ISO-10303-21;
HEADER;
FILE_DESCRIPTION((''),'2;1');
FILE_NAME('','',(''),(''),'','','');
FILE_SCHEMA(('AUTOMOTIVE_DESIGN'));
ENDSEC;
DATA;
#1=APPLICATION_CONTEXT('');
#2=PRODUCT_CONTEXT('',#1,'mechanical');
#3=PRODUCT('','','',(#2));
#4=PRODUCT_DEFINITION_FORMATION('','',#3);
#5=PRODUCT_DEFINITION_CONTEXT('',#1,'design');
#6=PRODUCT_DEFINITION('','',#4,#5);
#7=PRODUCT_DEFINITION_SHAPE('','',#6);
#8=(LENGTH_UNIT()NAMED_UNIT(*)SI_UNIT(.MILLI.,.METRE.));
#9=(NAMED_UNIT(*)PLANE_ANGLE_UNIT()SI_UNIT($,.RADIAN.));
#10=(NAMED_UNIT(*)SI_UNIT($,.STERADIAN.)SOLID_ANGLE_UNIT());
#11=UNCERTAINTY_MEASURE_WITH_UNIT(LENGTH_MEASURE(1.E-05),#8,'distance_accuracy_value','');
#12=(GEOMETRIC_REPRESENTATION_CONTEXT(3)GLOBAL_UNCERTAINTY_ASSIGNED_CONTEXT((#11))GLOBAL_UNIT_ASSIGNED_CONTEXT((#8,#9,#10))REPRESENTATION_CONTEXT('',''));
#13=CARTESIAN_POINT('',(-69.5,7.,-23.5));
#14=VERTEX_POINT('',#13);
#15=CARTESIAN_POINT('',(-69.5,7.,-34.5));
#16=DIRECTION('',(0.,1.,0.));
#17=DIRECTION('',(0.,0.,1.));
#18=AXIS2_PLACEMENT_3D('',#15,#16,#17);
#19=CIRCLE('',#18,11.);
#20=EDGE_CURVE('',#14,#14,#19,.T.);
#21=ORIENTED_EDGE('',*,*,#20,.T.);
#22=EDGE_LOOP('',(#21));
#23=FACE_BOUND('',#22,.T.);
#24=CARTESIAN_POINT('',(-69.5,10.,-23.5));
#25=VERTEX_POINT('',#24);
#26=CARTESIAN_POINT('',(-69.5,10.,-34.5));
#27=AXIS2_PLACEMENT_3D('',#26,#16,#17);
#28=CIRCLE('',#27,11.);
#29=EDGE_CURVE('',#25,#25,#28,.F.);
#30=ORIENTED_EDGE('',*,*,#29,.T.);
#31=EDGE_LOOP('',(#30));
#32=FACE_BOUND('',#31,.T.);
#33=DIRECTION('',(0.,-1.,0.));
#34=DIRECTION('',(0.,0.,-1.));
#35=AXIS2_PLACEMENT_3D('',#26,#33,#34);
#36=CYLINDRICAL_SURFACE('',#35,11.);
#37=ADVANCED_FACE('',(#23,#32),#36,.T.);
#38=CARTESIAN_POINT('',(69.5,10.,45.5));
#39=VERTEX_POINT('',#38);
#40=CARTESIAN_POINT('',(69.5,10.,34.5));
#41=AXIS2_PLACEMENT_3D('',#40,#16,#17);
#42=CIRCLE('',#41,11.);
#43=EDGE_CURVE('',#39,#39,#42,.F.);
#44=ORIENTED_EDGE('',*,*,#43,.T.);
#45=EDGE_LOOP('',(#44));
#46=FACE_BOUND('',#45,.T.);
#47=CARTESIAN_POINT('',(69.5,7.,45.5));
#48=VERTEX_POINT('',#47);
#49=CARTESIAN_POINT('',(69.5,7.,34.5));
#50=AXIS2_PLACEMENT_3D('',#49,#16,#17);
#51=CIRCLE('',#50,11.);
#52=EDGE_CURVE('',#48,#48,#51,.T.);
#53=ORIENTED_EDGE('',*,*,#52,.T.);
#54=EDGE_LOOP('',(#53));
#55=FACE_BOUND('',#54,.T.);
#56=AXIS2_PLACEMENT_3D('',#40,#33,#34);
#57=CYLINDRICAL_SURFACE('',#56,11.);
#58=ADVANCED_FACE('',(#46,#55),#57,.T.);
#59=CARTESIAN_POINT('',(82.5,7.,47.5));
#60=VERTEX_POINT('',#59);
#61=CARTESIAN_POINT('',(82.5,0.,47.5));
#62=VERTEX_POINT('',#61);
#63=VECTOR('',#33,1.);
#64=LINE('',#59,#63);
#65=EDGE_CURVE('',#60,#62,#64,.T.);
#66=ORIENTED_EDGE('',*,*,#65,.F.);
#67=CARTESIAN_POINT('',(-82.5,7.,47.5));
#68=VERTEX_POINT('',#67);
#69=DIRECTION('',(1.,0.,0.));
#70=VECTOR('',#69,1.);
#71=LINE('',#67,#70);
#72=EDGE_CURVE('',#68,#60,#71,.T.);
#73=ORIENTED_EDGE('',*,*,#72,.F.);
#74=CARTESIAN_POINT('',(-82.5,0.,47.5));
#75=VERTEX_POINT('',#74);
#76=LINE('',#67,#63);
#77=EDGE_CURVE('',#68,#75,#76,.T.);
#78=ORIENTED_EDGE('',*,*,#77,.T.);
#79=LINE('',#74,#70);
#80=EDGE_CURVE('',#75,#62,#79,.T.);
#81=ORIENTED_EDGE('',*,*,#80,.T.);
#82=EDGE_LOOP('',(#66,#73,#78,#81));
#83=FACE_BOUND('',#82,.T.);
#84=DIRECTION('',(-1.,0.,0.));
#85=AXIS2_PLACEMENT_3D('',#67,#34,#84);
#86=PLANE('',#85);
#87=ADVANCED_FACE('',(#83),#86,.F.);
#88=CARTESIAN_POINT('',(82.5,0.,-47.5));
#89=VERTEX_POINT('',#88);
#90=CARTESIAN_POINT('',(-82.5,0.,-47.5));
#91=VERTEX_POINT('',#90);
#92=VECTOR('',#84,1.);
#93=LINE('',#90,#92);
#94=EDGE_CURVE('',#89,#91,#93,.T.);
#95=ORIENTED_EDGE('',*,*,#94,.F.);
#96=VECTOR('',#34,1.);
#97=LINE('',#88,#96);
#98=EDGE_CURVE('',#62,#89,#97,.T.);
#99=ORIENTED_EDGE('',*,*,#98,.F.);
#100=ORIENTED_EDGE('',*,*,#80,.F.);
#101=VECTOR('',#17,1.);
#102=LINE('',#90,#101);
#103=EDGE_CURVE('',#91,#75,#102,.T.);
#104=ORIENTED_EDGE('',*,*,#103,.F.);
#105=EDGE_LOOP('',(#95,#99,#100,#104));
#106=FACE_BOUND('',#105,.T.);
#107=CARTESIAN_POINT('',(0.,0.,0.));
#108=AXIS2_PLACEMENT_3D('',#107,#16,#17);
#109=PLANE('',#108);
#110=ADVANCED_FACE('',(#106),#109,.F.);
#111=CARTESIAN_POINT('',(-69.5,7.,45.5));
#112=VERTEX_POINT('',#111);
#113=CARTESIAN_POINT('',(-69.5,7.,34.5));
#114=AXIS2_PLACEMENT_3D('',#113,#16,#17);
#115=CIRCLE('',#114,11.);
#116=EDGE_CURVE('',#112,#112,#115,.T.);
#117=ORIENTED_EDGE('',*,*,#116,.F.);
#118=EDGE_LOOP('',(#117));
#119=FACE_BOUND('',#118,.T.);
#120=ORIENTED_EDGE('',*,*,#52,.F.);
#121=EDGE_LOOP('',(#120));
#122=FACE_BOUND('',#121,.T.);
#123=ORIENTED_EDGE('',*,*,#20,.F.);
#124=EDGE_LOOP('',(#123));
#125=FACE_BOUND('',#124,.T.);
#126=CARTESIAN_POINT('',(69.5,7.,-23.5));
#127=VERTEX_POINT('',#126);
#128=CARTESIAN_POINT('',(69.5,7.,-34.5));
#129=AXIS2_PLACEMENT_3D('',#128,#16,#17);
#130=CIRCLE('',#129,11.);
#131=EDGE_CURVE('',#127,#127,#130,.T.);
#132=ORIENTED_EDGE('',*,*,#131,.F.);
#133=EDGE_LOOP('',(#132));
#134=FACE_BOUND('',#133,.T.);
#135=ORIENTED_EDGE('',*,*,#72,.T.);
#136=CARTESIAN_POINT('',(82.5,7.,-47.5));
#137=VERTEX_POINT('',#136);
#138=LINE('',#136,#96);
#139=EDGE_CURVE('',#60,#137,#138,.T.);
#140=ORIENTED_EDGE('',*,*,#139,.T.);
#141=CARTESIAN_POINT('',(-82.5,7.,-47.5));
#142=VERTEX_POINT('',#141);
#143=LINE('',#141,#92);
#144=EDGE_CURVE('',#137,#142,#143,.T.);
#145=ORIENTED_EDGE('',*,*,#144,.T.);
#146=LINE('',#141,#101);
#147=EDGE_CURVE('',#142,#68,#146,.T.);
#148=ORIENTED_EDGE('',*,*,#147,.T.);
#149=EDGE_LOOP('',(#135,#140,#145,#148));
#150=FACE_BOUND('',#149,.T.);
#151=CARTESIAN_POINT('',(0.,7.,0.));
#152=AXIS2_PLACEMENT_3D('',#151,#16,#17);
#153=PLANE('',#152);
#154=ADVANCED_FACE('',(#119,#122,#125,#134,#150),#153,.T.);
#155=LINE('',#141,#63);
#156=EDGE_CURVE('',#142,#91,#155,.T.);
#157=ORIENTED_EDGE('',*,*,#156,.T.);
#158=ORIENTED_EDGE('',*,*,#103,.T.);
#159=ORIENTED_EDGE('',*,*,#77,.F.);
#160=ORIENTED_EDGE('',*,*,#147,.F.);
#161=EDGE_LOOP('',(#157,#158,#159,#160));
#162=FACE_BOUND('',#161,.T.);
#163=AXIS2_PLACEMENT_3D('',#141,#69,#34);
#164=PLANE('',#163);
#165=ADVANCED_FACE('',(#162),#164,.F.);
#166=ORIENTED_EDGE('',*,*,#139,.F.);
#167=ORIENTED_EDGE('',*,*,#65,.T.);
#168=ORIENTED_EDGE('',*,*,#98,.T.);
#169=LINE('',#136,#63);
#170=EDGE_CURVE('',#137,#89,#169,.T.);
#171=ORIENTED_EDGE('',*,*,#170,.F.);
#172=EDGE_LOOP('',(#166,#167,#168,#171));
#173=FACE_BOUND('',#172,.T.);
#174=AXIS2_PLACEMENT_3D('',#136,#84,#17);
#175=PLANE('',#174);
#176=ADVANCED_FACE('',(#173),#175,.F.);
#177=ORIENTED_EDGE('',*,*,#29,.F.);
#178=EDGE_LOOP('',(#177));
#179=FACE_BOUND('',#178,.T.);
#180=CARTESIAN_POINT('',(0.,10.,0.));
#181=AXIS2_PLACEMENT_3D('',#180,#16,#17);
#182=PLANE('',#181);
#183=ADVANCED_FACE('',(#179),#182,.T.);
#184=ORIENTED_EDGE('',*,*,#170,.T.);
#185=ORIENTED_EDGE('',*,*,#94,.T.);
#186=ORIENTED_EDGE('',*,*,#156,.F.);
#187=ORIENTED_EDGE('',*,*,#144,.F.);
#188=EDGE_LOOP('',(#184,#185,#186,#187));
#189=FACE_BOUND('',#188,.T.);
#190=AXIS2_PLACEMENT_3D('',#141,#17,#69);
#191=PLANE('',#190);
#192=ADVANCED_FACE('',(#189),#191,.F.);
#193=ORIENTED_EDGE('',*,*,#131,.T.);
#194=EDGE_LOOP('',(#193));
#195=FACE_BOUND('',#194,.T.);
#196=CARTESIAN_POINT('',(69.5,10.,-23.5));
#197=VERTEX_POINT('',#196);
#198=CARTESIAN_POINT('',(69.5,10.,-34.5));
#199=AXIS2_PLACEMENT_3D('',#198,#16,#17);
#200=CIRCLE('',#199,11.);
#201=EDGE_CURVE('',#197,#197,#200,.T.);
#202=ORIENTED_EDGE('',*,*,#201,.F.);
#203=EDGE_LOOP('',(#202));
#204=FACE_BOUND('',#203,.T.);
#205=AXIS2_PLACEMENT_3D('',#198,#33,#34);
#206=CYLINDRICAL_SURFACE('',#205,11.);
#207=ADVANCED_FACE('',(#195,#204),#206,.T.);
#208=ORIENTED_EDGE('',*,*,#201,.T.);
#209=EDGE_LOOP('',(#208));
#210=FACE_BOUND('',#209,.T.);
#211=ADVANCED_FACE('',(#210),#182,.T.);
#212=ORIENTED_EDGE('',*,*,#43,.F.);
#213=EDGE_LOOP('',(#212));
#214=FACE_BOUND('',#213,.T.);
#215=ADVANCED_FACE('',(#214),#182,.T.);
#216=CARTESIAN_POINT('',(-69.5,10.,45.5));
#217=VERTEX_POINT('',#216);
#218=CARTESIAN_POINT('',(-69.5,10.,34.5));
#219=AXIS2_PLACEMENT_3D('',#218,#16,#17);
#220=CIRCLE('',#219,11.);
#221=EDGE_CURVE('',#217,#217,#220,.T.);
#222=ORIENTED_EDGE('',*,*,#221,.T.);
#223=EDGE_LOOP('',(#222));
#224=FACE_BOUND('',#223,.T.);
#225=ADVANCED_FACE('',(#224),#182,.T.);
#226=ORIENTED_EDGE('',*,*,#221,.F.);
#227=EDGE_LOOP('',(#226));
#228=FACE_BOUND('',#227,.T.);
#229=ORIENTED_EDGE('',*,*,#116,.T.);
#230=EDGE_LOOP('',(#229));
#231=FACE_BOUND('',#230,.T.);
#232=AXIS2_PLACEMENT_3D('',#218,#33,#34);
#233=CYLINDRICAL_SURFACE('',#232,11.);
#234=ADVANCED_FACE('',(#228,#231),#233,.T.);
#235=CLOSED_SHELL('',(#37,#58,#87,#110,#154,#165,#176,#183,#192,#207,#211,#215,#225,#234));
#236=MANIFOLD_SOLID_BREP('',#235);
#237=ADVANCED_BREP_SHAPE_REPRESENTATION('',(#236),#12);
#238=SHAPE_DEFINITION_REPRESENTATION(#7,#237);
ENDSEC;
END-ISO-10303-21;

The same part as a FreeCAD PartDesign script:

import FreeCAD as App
import Part
import Sketcher

V = App.Vector


def add_polygon(sketch, points):
    """Adds a closed chain of lines whose ends are joined by coincident constraints."""
    first, n = sketch.GeometryCount, len(points)
    for a, b in zip(points, points[1:] + points[:1]):
        sketch.addGeometry(Part.LineSegment(App.Vector(*a, 0), App.Vector(*b, 0)), False)
    for i in range(n):
        sketch.addConstraint(Sketcher.Constraint("Coincident", first + i, 2, first + (i + 1) % n, 1))

doc = App.newDocument("Part")
body = doc.addObject("PartDesign::Body", "Body")

# Sketch on XZ plane
sketch1 = body.newObject("Sketcher::SketchObject", "Sketch")
sketch1.AttachmentSupport = (doc.getObject("XZ_Plane"), [""])
sketch1.MapMode = "FlatFace"
add_polygon(sketch1, [(-82.5, -47.5), (-82.5, 47.5), (82.5, 47.5), (82.5, -47.5)])  # lines 0-3
sketch1.addConstraint(Sketcher.Constraint("Vertical", 0))
sketch1.addConstraint(Sketcher.Constraint("Horizontal", 1))
sketch1.addConstraint(Sketcher.Constraint("Vertical", 2))
sketch1.addConstraint(Sketcher.Constraint("Horizontal", 3))
sketch1.addConstraint(Sketcher.Constraint("Symmetric", 0, 2, 2, 2, -1, 1))
sketch1.addConstraint(Sketcher.Constraint("DistanceX", 1, 1, 1, 2, 165.0))
sketch1.addConstraint(Sketcher.Constraint("DistanceY", 0, 1, 0, 2, 95.0))
pad1 = body.newObject("PartDesign::Pad", "Pad")
pad1.Profile = sketch1
pad1.Length = 7
pad1.Reversed = True

# Sketch on XZ plane
sketch2 = body.newObject("Sketcher::SketchObject", "Sketch001")
sketch2.AttachmentSupport = (doc.getObject("XZ_Plane"), [""])
sketch2.MapMode = "FlatFace"
sketch2.AttachmentOffset = App.Placement(V(0, 0, -7), App.Rotation())
sketch2.addGeometry(Part.Circle(V(-69.5, -34.5, 0), V(0, 0, 1), 11), False)
sketch2.addGeometry(Part.Circle(V(-69.5, 34.5, 0), V(0, 0, 1), 11), False)
sketch2.addGeometry(Part.Circle(V(69.5, -34.5, 0), V(0, 0, 1), 11), False)
sketch2.addGeometry(Part.Circle(V(69.5, 34.5, 0), V(0, 0, 1), 11), False)
sketch2.addConstraint(Sketcher.Constraint("Equal", 0, 1))
sketch2.addConstraint(Sketcher.Constraint("Equal", 1, 2))
sketch2.addConstraint(Sketcher.Constraint("Equal", 2, 3))
sketch2.addConstraint(Sketcher.Constraint("Symmetric", 1, 3, 2, 3, -1, 1))
sketch2.addConstraint(Sketcher.Constraint("Symmetric", 0, 3, 3, 3, -1, 1))
sketch2.addConstraint(Sketcher.Constraint("Symmetric", 0, 3, 2, 3, -2))
sketch2.addConstraint(Sketcher.Constraint("Diameter", 0, 22.0))
sketch2.addConstraint(Sketcher.Constraint("DistanceY", 0, 3, 1, 3, 69.0))
sketch2.addConstraint(Sketcher.Constraint("DistanceX", 0, 3, 2, 3, 139.0))
pad2 = body.newObject("PartDesign::Pad", "Pad001")
pad2.Profile = sketch2
pad2.Length = 3
pad2.Reversed = True

doc.recompute()
